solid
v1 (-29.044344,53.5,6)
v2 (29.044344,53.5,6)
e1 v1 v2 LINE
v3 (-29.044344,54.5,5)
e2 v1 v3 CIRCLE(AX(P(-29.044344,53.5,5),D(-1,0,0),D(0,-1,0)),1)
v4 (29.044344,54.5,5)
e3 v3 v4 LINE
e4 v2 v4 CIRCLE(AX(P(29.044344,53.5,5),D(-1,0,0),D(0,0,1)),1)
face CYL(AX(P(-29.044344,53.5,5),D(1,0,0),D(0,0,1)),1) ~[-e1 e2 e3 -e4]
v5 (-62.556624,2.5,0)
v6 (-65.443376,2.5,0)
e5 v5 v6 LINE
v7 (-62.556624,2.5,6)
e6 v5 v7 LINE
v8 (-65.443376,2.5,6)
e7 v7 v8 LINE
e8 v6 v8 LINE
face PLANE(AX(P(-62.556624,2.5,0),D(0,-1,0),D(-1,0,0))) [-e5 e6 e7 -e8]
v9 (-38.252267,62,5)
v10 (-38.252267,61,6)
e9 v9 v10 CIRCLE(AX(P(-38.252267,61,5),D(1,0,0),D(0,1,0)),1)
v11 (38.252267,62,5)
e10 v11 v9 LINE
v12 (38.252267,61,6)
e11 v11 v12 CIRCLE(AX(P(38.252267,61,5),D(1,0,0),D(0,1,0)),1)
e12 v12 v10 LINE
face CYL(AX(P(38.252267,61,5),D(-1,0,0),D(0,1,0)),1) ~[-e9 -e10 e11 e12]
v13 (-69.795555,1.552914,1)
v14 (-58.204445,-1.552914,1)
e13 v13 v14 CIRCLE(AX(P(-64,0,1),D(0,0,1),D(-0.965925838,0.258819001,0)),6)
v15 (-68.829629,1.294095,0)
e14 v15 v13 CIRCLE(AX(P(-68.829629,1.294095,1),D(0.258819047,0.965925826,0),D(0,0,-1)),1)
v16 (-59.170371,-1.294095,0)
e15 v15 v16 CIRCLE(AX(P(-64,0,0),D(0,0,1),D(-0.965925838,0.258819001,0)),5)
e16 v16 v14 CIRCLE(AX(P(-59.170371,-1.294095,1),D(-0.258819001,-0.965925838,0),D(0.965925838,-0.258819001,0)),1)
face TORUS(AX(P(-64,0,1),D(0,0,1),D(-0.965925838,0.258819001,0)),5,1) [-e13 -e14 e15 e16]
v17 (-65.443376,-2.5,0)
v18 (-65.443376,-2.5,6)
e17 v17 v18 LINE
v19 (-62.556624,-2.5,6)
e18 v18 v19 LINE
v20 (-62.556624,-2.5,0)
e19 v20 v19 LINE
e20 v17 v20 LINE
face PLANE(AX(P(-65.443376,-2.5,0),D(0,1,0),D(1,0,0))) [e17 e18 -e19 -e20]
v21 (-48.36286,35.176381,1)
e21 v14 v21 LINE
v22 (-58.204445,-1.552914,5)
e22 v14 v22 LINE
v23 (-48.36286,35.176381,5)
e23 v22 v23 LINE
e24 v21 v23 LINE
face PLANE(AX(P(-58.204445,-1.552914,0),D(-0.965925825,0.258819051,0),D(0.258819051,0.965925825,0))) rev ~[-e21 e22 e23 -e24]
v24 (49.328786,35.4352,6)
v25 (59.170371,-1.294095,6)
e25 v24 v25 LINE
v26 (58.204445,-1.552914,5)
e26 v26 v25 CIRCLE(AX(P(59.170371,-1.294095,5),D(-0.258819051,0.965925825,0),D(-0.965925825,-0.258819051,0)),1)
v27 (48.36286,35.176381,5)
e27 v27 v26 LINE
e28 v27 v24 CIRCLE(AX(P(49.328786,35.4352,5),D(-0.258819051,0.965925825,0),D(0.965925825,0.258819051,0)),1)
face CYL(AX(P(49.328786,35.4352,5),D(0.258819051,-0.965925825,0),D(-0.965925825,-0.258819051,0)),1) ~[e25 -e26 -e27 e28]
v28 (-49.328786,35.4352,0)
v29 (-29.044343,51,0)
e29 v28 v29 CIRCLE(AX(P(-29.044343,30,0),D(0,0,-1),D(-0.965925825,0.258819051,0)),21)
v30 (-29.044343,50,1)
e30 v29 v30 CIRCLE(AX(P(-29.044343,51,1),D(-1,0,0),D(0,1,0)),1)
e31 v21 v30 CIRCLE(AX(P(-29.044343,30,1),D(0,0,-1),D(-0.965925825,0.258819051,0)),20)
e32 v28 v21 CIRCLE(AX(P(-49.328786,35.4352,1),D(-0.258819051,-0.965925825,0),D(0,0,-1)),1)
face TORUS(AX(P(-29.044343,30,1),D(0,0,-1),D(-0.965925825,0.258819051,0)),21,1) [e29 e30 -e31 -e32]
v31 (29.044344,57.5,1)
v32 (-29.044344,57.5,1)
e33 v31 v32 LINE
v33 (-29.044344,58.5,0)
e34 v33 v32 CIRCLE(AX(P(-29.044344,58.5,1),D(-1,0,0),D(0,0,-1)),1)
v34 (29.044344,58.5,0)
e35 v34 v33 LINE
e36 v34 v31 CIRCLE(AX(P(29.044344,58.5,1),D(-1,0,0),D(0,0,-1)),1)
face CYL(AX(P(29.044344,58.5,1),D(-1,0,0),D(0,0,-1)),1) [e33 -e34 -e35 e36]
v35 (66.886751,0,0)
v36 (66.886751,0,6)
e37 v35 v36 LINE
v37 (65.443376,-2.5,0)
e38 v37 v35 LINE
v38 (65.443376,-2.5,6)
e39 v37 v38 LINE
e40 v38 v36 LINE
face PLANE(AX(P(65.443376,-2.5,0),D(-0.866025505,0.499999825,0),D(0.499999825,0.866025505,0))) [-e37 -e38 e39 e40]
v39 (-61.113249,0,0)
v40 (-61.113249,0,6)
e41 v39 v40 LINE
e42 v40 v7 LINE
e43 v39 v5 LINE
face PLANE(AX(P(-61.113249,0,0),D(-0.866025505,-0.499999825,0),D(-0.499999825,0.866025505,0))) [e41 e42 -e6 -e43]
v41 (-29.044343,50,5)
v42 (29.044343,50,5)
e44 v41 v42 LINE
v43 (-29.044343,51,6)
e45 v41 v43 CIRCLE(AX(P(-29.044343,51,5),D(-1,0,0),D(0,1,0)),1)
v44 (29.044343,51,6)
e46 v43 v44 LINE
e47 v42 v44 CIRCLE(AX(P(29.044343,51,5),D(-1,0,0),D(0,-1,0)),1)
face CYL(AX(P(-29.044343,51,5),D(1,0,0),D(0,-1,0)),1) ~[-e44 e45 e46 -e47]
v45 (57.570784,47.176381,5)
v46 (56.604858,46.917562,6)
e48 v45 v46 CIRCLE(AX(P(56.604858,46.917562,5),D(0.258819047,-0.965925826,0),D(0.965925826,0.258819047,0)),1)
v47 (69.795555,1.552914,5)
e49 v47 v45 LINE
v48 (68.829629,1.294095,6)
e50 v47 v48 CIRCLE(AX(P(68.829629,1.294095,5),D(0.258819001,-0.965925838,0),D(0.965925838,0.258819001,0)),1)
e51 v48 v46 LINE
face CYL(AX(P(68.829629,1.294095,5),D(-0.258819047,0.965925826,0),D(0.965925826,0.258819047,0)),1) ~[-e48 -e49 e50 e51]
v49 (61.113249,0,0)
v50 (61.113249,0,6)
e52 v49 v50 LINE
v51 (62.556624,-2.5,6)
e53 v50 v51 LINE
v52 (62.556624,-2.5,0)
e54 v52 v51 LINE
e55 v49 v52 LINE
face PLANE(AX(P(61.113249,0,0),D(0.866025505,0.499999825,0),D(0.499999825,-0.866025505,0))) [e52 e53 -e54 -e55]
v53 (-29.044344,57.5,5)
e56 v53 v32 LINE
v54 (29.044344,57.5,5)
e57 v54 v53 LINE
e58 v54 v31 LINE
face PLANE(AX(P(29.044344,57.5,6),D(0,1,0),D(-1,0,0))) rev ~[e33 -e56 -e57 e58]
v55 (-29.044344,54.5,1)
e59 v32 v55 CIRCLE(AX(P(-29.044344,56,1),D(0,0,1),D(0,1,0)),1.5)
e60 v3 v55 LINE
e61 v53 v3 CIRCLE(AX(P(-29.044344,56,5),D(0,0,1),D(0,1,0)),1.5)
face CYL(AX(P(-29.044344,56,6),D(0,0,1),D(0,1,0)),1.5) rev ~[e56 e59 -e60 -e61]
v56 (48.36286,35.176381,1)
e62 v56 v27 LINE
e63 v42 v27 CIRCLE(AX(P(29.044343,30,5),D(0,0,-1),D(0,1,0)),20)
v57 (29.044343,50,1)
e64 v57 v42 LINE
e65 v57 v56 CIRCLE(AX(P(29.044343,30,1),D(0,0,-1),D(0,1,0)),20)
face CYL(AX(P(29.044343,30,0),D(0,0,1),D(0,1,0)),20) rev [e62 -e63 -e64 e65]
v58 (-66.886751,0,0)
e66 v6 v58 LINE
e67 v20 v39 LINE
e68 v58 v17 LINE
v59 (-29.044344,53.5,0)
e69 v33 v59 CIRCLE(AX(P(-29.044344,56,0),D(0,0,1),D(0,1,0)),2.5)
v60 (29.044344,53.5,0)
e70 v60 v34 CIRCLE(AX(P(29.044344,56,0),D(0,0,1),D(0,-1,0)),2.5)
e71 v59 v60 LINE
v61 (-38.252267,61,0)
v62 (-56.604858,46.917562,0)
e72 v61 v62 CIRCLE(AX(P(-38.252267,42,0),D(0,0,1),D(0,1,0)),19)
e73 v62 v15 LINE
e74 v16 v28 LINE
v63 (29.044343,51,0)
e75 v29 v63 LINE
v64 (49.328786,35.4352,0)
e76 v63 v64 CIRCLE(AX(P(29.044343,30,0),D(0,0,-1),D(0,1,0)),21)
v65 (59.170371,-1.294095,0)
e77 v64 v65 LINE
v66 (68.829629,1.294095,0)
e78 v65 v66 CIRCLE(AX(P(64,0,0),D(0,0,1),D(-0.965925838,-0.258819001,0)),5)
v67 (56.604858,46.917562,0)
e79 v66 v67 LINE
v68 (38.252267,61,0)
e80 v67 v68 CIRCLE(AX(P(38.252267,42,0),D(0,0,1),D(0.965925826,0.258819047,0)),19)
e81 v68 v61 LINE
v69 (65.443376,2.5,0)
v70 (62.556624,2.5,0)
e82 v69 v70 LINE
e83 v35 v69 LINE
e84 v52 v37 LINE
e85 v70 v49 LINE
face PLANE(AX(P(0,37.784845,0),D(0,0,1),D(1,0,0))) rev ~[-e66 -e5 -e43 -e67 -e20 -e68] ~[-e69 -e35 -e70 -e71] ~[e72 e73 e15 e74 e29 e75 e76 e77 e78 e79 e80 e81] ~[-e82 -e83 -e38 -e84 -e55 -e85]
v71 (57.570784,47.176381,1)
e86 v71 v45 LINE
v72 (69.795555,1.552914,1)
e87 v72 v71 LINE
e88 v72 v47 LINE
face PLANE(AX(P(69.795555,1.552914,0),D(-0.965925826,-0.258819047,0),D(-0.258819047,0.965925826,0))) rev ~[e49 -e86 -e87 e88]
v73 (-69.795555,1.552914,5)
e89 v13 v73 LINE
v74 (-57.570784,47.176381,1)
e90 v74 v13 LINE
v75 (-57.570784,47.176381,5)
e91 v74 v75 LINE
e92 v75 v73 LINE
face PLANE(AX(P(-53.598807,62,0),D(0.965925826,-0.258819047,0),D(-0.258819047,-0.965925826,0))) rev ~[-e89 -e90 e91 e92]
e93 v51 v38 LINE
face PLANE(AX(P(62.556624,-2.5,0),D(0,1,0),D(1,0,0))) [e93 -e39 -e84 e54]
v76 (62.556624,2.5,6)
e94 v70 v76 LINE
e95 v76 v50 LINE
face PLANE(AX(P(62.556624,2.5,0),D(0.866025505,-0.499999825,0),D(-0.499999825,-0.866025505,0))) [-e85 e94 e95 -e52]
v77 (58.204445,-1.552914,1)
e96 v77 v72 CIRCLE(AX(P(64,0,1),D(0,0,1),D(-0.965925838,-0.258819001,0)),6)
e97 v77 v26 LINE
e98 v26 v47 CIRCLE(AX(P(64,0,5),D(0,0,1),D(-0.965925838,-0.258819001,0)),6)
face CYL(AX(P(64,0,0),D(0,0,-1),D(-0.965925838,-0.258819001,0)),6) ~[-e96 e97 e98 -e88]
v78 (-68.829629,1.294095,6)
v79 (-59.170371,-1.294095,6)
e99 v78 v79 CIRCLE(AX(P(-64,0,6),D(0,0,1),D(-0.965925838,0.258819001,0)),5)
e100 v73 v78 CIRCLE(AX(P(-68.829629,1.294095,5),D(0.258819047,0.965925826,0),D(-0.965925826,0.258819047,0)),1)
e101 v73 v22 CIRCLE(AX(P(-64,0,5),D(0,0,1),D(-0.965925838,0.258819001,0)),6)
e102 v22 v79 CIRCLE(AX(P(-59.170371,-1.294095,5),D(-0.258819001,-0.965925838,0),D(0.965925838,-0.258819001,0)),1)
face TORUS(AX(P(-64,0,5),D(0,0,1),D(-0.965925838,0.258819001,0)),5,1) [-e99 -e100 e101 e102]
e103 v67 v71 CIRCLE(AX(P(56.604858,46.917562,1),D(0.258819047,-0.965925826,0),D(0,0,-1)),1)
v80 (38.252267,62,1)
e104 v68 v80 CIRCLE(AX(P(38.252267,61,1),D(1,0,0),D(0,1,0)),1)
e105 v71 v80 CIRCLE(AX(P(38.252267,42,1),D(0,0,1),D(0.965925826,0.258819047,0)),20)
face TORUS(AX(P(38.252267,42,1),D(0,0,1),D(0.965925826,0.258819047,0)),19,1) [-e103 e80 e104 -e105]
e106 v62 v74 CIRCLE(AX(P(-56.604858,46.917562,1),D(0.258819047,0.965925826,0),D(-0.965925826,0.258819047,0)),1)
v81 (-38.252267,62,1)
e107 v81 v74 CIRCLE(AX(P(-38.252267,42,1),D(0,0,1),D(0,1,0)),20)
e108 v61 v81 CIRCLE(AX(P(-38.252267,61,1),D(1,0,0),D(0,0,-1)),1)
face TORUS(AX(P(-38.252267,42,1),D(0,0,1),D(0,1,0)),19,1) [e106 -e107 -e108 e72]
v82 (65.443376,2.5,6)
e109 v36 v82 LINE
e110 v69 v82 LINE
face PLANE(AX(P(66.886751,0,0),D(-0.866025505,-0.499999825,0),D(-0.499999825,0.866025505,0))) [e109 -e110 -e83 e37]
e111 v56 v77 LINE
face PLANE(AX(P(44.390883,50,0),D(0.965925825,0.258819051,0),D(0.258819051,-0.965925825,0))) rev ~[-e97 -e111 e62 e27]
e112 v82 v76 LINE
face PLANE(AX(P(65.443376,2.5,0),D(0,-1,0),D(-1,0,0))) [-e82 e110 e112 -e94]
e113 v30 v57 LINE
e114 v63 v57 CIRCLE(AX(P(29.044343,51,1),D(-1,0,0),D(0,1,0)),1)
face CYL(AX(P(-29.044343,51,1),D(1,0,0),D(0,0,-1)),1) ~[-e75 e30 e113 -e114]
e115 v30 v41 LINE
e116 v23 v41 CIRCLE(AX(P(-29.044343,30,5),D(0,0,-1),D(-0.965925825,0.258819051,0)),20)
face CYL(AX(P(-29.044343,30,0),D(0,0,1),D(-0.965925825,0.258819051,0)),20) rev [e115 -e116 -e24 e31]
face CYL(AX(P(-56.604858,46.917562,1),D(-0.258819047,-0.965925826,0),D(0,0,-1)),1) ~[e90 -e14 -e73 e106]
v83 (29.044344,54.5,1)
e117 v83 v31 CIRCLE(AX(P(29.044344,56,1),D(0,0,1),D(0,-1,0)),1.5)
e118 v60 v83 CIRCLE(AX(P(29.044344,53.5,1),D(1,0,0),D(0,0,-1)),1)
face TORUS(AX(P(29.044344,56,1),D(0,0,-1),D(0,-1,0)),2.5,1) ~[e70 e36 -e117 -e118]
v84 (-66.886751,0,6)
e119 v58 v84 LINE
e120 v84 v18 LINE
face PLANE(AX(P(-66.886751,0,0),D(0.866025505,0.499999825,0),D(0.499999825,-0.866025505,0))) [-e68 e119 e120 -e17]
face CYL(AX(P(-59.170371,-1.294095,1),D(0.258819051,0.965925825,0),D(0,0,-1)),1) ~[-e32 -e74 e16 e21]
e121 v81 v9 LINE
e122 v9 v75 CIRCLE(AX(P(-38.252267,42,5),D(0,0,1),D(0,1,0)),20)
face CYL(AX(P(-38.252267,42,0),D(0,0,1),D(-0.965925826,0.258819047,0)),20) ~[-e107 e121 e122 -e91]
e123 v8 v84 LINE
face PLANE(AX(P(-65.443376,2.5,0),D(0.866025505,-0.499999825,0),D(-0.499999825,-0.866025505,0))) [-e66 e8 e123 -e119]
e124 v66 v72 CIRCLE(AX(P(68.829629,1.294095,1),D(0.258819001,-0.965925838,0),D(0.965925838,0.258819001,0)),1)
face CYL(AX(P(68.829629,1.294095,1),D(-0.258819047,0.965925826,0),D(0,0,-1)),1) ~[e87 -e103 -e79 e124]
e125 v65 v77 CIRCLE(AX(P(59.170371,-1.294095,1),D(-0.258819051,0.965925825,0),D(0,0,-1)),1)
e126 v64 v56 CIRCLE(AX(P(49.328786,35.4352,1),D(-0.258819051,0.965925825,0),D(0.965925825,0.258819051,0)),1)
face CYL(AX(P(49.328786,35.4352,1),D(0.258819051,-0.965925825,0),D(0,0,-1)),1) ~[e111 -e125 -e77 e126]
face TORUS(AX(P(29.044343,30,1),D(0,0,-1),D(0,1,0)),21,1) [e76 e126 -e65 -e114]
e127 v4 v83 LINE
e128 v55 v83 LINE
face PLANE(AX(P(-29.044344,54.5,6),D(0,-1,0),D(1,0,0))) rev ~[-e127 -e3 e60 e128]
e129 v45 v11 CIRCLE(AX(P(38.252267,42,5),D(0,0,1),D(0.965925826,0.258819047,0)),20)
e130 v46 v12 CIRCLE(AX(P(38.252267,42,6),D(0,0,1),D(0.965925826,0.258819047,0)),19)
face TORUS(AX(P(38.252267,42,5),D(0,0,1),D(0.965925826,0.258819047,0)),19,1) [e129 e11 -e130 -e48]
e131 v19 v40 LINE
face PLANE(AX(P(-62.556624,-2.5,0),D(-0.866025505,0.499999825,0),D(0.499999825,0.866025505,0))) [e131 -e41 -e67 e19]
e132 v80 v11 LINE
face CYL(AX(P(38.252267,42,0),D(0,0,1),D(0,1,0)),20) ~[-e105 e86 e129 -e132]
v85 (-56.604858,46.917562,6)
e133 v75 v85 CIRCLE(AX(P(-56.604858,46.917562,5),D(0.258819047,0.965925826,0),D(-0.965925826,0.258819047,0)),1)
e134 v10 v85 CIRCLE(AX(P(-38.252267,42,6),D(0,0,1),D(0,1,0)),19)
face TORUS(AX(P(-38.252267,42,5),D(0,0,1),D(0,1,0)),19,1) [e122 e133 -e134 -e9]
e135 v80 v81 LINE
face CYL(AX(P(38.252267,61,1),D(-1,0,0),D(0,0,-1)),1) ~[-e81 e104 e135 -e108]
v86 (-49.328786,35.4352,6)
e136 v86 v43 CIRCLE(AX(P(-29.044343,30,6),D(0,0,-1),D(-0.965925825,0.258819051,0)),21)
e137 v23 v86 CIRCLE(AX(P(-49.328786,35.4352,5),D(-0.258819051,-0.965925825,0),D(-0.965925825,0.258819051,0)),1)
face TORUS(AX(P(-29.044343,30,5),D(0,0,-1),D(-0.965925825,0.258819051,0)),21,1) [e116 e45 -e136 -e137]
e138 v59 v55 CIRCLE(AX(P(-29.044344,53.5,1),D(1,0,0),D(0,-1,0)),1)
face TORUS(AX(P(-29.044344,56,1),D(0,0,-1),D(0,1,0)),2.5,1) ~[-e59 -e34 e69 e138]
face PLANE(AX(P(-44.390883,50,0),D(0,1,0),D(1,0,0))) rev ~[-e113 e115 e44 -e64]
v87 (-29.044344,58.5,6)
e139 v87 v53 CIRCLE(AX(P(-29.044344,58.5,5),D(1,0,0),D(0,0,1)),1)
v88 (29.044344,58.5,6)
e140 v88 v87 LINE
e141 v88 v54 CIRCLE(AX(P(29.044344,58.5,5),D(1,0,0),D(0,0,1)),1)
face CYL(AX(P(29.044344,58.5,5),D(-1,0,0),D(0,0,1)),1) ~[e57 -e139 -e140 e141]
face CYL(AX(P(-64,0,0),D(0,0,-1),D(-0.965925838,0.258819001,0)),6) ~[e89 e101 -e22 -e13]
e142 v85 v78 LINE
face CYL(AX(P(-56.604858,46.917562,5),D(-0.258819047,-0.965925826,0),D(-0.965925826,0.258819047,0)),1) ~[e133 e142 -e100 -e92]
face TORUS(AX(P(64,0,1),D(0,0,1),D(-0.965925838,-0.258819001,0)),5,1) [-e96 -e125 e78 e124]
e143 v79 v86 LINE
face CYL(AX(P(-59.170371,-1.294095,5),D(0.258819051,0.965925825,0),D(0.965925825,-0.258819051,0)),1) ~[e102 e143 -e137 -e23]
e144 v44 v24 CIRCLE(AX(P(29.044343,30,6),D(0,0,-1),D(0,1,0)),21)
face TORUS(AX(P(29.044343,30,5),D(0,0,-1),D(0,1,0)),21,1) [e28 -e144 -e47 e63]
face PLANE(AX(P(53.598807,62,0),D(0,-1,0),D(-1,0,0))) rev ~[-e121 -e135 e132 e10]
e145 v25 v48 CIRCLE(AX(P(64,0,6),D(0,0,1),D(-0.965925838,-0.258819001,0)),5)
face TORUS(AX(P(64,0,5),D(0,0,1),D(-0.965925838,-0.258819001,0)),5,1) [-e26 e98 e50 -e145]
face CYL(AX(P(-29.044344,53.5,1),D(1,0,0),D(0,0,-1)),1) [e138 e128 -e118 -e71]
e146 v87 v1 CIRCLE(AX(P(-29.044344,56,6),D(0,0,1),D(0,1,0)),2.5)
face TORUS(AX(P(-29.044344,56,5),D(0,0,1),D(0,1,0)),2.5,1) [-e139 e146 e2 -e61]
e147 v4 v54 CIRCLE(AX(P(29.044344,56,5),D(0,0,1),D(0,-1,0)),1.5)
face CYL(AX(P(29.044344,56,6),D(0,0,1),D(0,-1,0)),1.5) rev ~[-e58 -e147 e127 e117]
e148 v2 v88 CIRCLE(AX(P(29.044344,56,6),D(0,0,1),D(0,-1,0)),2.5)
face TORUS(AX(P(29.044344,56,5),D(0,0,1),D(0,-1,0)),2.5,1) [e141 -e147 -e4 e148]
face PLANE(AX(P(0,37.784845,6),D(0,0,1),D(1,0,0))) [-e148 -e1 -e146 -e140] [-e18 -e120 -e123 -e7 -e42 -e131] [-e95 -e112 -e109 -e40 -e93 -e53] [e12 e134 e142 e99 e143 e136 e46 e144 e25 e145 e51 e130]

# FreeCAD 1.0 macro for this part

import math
import FreeCAD as App
import Part
import Sketcher
from FreeCAD import Vector
Q = App.Units.Quantity


def edges_at(feature, points):
    """Names of the edges that pass closest to the given points."""
    edges = feature.Shape.Edges
    near = lambda p: min(range(len(edges)), key=lambda i: edges[i].distToShape(Part.Vertex(*p))[0])
    return sorted({f"Edge{near(p) + 1}" for p in points})


def add_polygon(sketch, points):
    """Adds a closed chain of lines whose ends are joined by coincident constraints."""
    first, n = sketch.GeometryCount, len(points)
    for a, b in zip(points, points[1:] + points[:1]):
        sketch.addGeometry(Part.LineSegment(App.Vector(*a, 0), App.Vector(*b, 0)), False)
    for i in range(n):
        sketch.addConstraint(Sketcher.Constraint("Coincident", first + i, 2, first + (i + 1) % n, 1))

doc = App.newDocument("Part")
params = doc.addObject("Spreadsheet::Sheet", "Params")
for row, (alias, value) in enumerate([
    ("sketch1_radius", "6 mm"),
    ("pad1_length", "6 mm"),
    ("fillet_radius", "20 mm"),
    ("sketch2_radius", "1.5 mm"),
    ("pocket1_length", "6 mm"),
    ("fillet2_radius", "1 mm"),
    ("fillet3_radius", "1 mm"),
], start=1):
    params.set(f"A{row}", alias)
    params.set(f"B{row}", "=" + value)
    params.setAlias(f"B{row}", alias)

body = doc.addObject("PartDesign::Body", "Body")

# Sketch on XY plane
sketch1 = doc.addObject("Sketcher::SketchObject", "Sketch")
body.addObject(sketch1)
sketch1.AttachmentSupport = (doc.XY_Plane, [""])
sketch1.MapMode = "FlatFace"
sketch1.addGeometry(Part.ArcOfCircle(Part.Circle(Vector(-64, 0, 0), Vector(0, 0, 1), 6), math.radians(165), math.radians(345)), False)  # 0
sketch1.addGeometry(Part.LineSegment(Vector(-58.2, -1.6, 0), Vector(-44.4, 50, 0)), False)  # 1
sketch1.addGeometry(Part.LineSegment(Vector(-44.4, 50, 0), Vector(44.4, 50, 0)), False)  # 2
sketch1.addGeometry(Part.LineSegment(Vector(44.4, 50, 0), Vector(58.2, -1.6, 0)), False)  # 3
sketch1.addGeometry(Part.ArcOfCircle(Part.Circle(Vector(64, 0, 0), Vector(0, 0, 1), 6), math.radians(-165), math.radians(15)), False)  # 4
sketch1.addGeometry(Part.LineSegment(Vector(69.8, 1.6, 0), Vector(53.6, 62, 0)), False)  # 5
sketch1.addGeometry(Part.LineSegment(Vector(53.6, 62, 0), Vector(-53.6, 62, 0)), False)  # 6
sketch1.addGeometry(Part.LineSegment(Vector(-53.6, 62, 0), Vector(-69.8, 1.6, 0)), False)  # 7
add_polygon(sketch1, [(-65.4, 2.5), (-62.6, 2.5), (-61.1, 0), (-62.6, -2.5), (-65.4, -2.5), (-66.9, 0)])  # lines 8-13
add_polygon(sketch1, [(62.6, 2.5), (65.4, 2.5), (66.9, 0), (65.4, -2.5), (62.6, -2.5), (61.1, 0)])  # lines 14-19
sketch1.addConstraint(Sketcher.Constraint("Tangent", 0, 2, 1, 1))
sketch1.addConstraint(Sketcher.Constraint("Coincident", 1, 2, 2, 1))
sketch1.addConstraint(Sketcher.Constraint("Coincident", 2, 2, 3, 1))
sketch1.addConstraint(Sketcher.Constraint("Tangent", 3, 2, 4, 1))
sketch1.addConstraint(Sketcher.Constraint("Tangent", 4, 2, 5, 1))
sketch1.addConstraint(Sketcher.Constraint("Coincident", 5, 2, 6, 1))
sketch1.addConstraint(Sketcher.Constraint("Coincident", 6, 2, 7, 1))
sketch1.addConstraint(Sketcher.Constraint("Tangent", 7, 2, 0, 1))
sketch1.addConstraint(Sketcher.Constraint("Horizontal", 2))
sketch1.addConstraint(Sketcher.Constraint("Horizontal", 6))
sketch1.addConstraint(Sketcher.Constraint("Horizontal", 8))
sketch1.addConstraint(Sketcher.Constraint("Horizontal", 11))
sketch1.addConstraint(Sketcher.Constraint("Horizontal", 14))
sketch1.addConstraint(Sketcher.Constraint("Horizontal", 17))
sketch1.addConstraint(Sketcher.Constraint("Equal", 0, 4))
sketch1.addConstraint(Sketcher.Constraint("Symmetric", 0, 3, 4, 3, -1, 1))
sketch1.addConstraint(Sketcher.Constraint("Symmetric", 11, 2, 14, 2, -1, 1))
sketch1.addConstraint(Sketcher.Constraint("Symmetric", 12, 2, 15, 2, -1, 1))
sketch1.addConstraint(Sketcher.Constraint("Symmetric", 13, 2, 16, 2, -1, 1))
sketch1.addConstraint(Sketcher.Constraint("Symmetric", 9, 2, 18, 2, -1, 1))
sketch1.addConstraint(Sketcher.Constraint("Symmetric", 0, 2, 3, 2, -2))
sketch1.addConstraint(Sketcher.Constraint("Symmetric", 13, 2, 14, 2, -2))
sketch1.addConstraint(Sketcher.Constraint("PointOnObject", 9, 2, -1))
sketch1.addConstraint(Sketcher.Constraint("PointOnObject", 12, 2, -1))
sketch1.addConstraint(Sketcher.Constraint("Parallel", 3, 5))
sketch1.addConstraint(Sketcher.Constraint("Parallel", 1, 7))
sketch1.addConstraint(Sketcher.Constraint("Parallel", 9, 12))
sketch1.addConstraint(Sketcher.Constraint("Parallel", 10, 13))
sketch1.addConstraint(Sketcher.Constraint("Parallel", 15, 18))
sketch1.addConstraint(Sketcher.Constraint("Parallel", 16, 19))
sketch1.addConstraint(Sketcher.Constraint("Radius", 0, Q("6 mm")))
sketch1.addConstraint(Sketcher.Constraint("Angle", 1, Q("75 deg")))
sketch1.addConstraint(Sketcher.Constraint("Angle", 9, Q("-60.000012 deg")))
sketch1.addConstraint(Sketcher.Constraint("DistanceX", 0, 3, -1, 1, Q("64 mm")))
sketch1.addConstraint(Sketcher.Constraint("DistanceY", -1, 1, 1, 2, Q("50 mm")))
sketch1.addConstraint(Sketcher.Constraint("DistanceY", -1, 1, 5, 2, Q("62 mm")))
sketch1.addConstraint(Sketcher.Constraint("DistanceY", 10, 2, 8, 2, Q("5 mm")))
sketch1.addConstraint(Sketcher.Constraint("DistanceX", 8, 1, 8, 2, Q("2.886752 mm")))
sketch1.addConstraint(Sketcher.Constraint("DistanceX", 9, 2, -1, 1, Q("61.113249 mm")))
sketch1.setExpression("Constraints[42]", "Params.sketch1_radius")
pad1 = doc.addObject("PartDesign::Pad", "Pad")
body.addObject(pad1)
pad1.Profile = sketch1
pad1.setExpression("Length", "Params.pad1_length")
doc.recompute()

fillet = doc.addObject("PartDesign::Fillet", "Fillet")
body.addObject(fillet)
fillet.Base = (pad1, edges_at(pad1, [
    (-53.599, 62, 3),
    (53.599, 62, 3),
    (-44.391, 50, 3),
    (44.391, 50, 3),
]))
fillet.setExpression("Radius", "Params.fillet_radius")

# Sketch on XY plane
sketch2 = doc.addObject("Sketcher::SketchObject", "Sketch001")
body.addObject(sketch2)
sketch2.AttachmentSupport = (doc.XY_Plane, [""])
sketch2.MapMode = "FlatFace"
sketch2.AttachmentOffset = App.Placement(Vector(0, 0, 6), App.Rotation())
sketch2.addGeometry(Part.ArcOfCircle(Part.Circle(Vector(-29, 56, 0), Vector(0, 0, 1), 1.5), math.radians(90), math.radians(270)), False)
sketch2.addGeometry(Part.LineSegment(Vector(-29, 54.5, 0), Vector(29, 54.5, 0)), False)
sketch2.addGeometry(Part.ArcOfCircle(Part.Circle(Vector(29, 56, 0), Vector(0, 0, 1), 1.5), math.radians(-90), math.radians(90)), False)
sketch2.addGeometry(Part.LineSegment(Vector(29, 57.5, 0), Vector(-29, 57.5, 0)), False)
sketch2.addConstraint(Sketcher.Constraint("Tangent", 0, 2, 1, 1))
sketch2.addConstraint(Sketcher.Constraint("Tangent", 1, 2, 2, 1))
sketch2.addConstraint(Sketcher.Constraint("Tangent", 2, 2, 3, 1))
sketch2.addConstraint(Sketcher.Constraint("Tangent", 3, 2, 0, 1))
sketch2.addConstraint(Sketcher.Constraint("Horizontal", 1))
sketch2.addConstraint(Sketcher.Constraint("Horizontal", 3))
sketch2.addConstraint(Sketcher.Constraint("Radius", 0, Q("1.5 mm")))
sketch2.addConstraint(Sketcher.Constraint("DistanceY", -1, 1, 0, 3, Q("56 mm")))
sketch2.addConstraint(Sketcher.Constraint("DistanceX", 1, 1, 1, 2, Q("58.088688 mm")))
sketch2.addConstraint(Sketcher.Constraint("DistanceX", 0, 3, -1, 1, Q("29.044344 mm")))
sketch2.setExpression("Constraints[6]", "Params.sketch2_radius")
pocket1 = doc.addObject("PartDesign::Pocket", "Pocket")
body.addObject(pocket1)
pocket1.Profile = sketch2
pocket1.setExpression("Length", "Params.pocket1_length")
doc.recompute()

fillet2 = doc.addObject("PartDesign::Fillet", "Fillet001")
body.addObject(fillet2)
fillet2.Base = (pocket1, edges_at(pocket1, [(0, 57.5, 6), (0, 57.5, 0)]))
fillet2.setExpression("Radius", "Params.fillet2_radius")
doc.recompute()

fillet3 = doc.addObject("PartDesign::Fillet", "Fillet002")
body.addObject(fillet3)
fillet3.Base = (fillet2, edges_at(fillet2, [(-41.22, 45.867, 6), (41.22, 45.867, 0)]))
fillet3.setExpression("Radius", "Params.fillet3_radius")

doc.recompute()
